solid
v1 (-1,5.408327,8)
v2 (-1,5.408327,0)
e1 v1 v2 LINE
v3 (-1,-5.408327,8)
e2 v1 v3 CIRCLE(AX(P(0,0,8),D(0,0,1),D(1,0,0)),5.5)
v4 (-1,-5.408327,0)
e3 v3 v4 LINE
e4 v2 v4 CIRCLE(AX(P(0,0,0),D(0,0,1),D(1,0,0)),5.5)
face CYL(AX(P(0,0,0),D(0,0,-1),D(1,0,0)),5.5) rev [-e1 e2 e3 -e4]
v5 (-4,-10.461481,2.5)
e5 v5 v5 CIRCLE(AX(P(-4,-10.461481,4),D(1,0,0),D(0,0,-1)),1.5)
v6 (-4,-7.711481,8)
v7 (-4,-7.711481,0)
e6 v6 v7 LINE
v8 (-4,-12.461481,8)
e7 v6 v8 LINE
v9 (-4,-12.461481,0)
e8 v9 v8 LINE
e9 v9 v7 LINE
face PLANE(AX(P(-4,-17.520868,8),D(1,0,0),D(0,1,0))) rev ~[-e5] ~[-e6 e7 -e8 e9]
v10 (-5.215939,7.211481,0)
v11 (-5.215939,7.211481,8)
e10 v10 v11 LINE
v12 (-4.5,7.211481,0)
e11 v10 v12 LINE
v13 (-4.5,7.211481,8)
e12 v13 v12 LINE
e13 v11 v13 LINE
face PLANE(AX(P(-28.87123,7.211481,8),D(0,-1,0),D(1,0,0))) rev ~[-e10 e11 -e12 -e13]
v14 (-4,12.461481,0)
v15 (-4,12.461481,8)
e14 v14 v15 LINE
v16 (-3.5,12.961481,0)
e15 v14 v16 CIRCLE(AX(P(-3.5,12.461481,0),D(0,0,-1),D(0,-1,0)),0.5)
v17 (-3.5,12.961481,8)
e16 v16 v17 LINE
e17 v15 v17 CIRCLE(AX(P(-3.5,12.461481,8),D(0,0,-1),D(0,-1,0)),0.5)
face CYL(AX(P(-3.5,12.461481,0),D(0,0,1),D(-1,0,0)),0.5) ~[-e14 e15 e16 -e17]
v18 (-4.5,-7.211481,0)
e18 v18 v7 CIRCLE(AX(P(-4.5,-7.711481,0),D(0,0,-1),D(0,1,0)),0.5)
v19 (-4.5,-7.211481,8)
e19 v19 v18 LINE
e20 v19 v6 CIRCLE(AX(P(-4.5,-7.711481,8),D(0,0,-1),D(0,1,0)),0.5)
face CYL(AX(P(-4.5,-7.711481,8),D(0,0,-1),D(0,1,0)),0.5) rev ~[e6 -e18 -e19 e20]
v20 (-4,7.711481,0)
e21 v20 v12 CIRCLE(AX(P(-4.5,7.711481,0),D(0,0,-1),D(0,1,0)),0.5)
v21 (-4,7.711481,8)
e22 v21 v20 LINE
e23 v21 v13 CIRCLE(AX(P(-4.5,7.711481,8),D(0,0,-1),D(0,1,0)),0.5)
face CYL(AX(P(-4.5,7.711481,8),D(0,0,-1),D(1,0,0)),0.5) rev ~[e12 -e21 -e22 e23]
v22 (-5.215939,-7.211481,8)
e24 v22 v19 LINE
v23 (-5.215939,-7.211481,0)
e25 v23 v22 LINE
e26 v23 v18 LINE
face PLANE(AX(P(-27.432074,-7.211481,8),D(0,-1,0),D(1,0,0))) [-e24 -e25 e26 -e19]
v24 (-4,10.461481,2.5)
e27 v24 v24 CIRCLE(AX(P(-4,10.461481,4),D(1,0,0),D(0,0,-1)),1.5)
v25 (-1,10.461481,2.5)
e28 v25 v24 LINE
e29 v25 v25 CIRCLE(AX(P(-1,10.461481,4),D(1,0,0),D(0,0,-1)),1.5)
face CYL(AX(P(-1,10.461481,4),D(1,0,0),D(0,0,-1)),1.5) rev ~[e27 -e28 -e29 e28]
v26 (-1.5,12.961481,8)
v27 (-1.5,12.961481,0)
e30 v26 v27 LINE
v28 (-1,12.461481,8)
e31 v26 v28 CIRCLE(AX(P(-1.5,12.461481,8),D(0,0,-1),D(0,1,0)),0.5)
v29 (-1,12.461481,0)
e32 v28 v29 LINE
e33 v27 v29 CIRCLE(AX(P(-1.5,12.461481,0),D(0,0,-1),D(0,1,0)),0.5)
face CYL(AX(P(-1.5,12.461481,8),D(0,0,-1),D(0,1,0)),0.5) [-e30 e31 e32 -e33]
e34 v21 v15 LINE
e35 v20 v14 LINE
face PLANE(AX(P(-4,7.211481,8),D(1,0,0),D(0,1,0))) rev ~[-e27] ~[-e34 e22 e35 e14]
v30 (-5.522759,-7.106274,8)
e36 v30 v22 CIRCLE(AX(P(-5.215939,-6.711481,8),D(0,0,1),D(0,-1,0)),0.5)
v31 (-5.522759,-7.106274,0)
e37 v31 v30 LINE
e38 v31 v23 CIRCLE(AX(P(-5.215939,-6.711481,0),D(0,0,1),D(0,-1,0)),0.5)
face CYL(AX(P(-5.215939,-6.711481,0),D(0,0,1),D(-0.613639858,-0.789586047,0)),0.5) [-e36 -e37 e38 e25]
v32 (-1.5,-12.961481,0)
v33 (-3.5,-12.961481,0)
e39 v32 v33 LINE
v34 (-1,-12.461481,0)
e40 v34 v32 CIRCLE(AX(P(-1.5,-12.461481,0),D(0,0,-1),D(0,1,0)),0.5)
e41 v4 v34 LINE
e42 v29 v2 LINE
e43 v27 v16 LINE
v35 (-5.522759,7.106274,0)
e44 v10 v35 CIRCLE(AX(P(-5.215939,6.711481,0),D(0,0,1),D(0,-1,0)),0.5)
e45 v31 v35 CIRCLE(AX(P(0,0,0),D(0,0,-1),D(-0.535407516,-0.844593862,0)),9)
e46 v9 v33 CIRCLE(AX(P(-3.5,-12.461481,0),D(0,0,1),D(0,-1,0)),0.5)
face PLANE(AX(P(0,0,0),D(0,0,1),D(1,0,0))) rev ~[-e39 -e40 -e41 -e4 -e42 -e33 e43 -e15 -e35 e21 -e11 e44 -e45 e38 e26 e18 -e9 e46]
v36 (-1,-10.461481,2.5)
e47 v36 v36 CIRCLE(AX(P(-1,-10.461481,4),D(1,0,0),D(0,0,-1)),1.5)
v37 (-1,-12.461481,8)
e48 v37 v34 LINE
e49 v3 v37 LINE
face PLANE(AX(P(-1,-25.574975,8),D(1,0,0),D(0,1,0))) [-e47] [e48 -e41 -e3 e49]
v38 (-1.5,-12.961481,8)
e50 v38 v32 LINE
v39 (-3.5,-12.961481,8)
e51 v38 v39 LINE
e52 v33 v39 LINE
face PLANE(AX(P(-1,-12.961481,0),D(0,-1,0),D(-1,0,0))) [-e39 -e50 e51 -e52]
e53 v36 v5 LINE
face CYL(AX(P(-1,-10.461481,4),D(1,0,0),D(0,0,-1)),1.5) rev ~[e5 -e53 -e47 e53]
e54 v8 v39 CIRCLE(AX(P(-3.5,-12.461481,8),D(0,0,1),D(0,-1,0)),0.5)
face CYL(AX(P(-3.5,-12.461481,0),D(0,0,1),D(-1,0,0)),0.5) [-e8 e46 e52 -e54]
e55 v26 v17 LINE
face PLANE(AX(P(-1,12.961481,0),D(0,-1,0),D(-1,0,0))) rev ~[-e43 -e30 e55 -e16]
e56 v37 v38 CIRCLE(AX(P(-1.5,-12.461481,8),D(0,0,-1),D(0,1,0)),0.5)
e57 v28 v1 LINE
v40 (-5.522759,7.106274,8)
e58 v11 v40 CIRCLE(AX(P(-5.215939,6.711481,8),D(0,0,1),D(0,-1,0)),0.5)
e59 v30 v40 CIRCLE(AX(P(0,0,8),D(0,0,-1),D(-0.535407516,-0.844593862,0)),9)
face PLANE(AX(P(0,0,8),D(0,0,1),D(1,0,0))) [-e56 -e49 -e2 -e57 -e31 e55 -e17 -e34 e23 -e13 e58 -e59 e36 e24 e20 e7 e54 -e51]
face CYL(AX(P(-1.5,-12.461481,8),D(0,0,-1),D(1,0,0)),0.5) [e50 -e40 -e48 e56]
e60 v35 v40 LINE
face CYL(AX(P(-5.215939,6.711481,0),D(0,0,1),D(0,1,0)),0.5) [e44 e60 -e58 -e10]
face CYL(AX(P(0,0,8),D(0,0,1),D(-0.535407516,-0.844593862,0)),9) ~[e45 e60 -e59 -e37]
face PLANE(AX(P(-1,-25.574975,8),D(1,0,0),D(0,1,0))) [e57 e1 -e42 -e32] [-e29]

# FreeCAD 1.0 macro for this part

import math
import FreeCAD as App
import Part
import Sketcher

V = App.Vector


def edges_at(feature, points):
    """Names of the edges that pass closest to the given points."""
    edges = feature.Shape.Edges
    near = lambda p: min(range(len(edges)), key=lambda i: edges[i].distToShape(Part.Vertex(*p))[0])
    return sorted({f"Edge{near(p) + 1}" for p in points})


def add_polygon(sketch, points):
    """Adds a closed chain of lines whose ends are joined by coincident constraints."""
    first, n = sketch.GeometryCount, len(points)
    for a, b in zip(points, points[1:] + points[:1]):
        sketch.addGeometry(Part.LineSegment(App.Vector(*a, 0), App.Vector(*b, 0)), False)
    for i in range(n):
        sketch.addConstraint(Sketcher.Constraint("Coincident", first + i, 2, first + (i + 1) % n, 1))

doc = App.newDocument("Part")
body = doc.addObject("PartDesign::Body", "Body")

# Sketch on XY plane
sketch1 = body.newObject("Sketcher::SketchObject", "Sketch")
sketch1.AttachmentSupport = (doc.getObject("XY_Plane"), [""])
sketch1.MapMode = "FlatFace"
sketch1.addGeometry([
    Part.Circle(V(0, 0, 0), V(0, 0, 1), 13),
    Part.Circle(V(0, 0, 0), V(0, 0, 1), 5.5),
], False)
sketch1.addConstraint([
    Sketcher.Constraint("Coincident", 0, 3, -1, 1),
    Sketcher.Constraint("Coincident", 1, 3, -1, 1),
    Sketcher.Constraint("Diameter", 0, 26.0),
    Sketcher.Constraint("Diameter", 1, 11.0),
])
pad1 = body.newObject("PartDesign::Pad", "Pad")
pad1.Profile = sketch1
pad1.Length = 8

# Sketch on XY plane
sketch2 = body.newObject("Sketcher::SketchObject", "Sketch001")
sketch2.AttachmentSupport = (doc.getObject("XY_Plane"), [""])
sketch2.MapMode = "FlatFace"
sketch2.AttachmentOffset = App.Placement(V(0, 0, 8), App.Rotation())
add_polygon(sketch2, [(-1, 24.243167), (-1, -25.574975), (31.310046, -25.574975), (31.310046, 24.243167)])  # lines 0-3
sketch2.addConstraint([
    Sketcher.Constraint("Vertical", 0),
    Sketcher.Constraint("Horizontal", 1),
    Sketcher.Constraint("Vertical", 2),
    Sketcher.Constraint("Horizontal", 3),
    Sketcher.Constraint("DistanceX", 0, 2, -1, 1, 1.0),
    Sketcher.Constraint("DistanceY", 0, 2, 0, 1, 49.818142),
    Sketcher.Constraint("DistanceX", 1, 1, 1, 2, 32.310046),
    Sketcher.Constraint("DistanceY", 0, 2, -1, 1, 25.574975),
])
pocket1 = body.newObject("PartDesign::Pocket", "Pocket")
pocket1.Profile = sketch2
pocket1.Length = 8

# Sketch on YZ plane
sketch3 = body.newObject("Sketcher::SketchObject", "Sketch002")
sketch3.AttachmentSupport = (doc.getObject("YZ_Plane"), [""])
sketch3.MapMode = "FlatFace"
sketch3.AttachmentOffset = App.Placement(V(0, 0, -1), App.Rotation())
sketch3.addGeometry([
    Part.Circle(V(10.461481, 4, 0), V(0, 0, 1), 1.5),
    Part.Circle(V(-10.461481, 4, 0), V(0, 0, 1), 1.5),
], False)
sketch3.addConstraint([
    Sketcher.Constraint("Equal", 0, 1),
    Sketcher.Constraint("Symmetric", 0, 3, 1, 3, -2),
    Sketcher.Constraint("Diameter", 0, 3.0),
    Sketcher.Constraint("DistanceY", -1, 1, 0, 3, 4.0),
    Sketcher.Constraint("DistanceX", -1, 1, 0, 3, 10.461481),
])
pocket2 = body.newObject("PartDesign::Pocket", "Pocket001")
pocket2.Profile = sketch3
pocket2.Length = 8

# Sketch on XY plane
sketch4 = body.newObject("Sketcher::SketchObject", "Sketch003")
sketch4.AttachmentSupport = (doc.getObject("XY_Plane"), [""])
sketch4.MapMode = "FlatFace"
sketch4.AttachmentOffset = App.Placement(V(0, 0, 8), App.Rotation())
add_polygon(sketch4, [(-28.87123, 21.044491), (-28.87123, 7.211481), (-4, 7.211481), (-4, 21.044491)])  # lines 0-3
add_polygon(sketch4, [(-27.432074, -7.211481), (-27.432074, -17.520868), (-4, -17.520868), (-4, -7.211481)])  # lines 4-7
sketch4.addConstraint([
    Sketcher.Constraint("Vertical", 0),
    Sketcher.Constraint("Horizontal", 1),
    Sketcher.Constraint("Vertical", 2),
    Sketcher.Constraint("Horizontal", 3),
    Sketcher.Constraint("Vertical", 4),
    Sketcher.Constraint("Horizontal", 5),
    Sketcher.Constraint("Vertical", 6),
    Sketcher.Constraint("Horizontal", 7),
    Sketcher.Constraint("Symmetric", 1, 2, 6, 2, -1),
    Sketcher.Constraint("DistanceX", 1, 2, -1, 1, 4.0),
    Sketcher.Constraint("DistanceX", 1, 1, 1, 2, 24.87123),
    Sketcher.Constraint("DistanceY", 0, 2, 0, 1, 13.83301),
    Sketcher.Constraint("DistanceX", 5, 1, 5, 2, 23.432074),
    Sketcher.Constraint("DistanceY", 4, 2, 4, 1, 10.309386),
    Sketcher.Constraint("DistanceY", -1, 1, 0, 2, 7.211481),
])
pocket3 = body.newObject("PartDesign::Pocket", "Pocket002")
pocket3.Profile = sketch4
pocket3.Length = 8

# Sketch on XY plane
sketch5 = body.newObject("Sketcher::SketchObject", "Sketch004")
sketch5.AttachmentSupport = (doc.getObject("XY_Plane"), [""])
sketch5.MapMode = "FlatFace"
sketch5.AttachmentOffset = App.Placement(V(0, 0, 8), App.Rotation())
sketch5.addGeometry([
    Part.LineSegment(V(-14.689218, -10.049334, 0), V(-4.818668, -7.601345, 0)),
    Part.ArcOfCircle(Part.Circle(V(0, 0, 0), V(0, 0, 1), 9), math.radians(119.956403), math.radians(237.628448)),
    Part.LineSegment(V(-4.494068, 7.79765, 0), V(-11.133482, 10.892455, 0)),
    Part.ArcOfCircle(Part.Circle(V(-3.918676, -1.105319, 0), V(0, 0, 1), 14), math.radians(121.020403), math.radians(219.706736)),
], False)
sketch5.addConstraint([
    Sketcher.Constraint("Coincident", 0, 2, 1, 2),
    Sketcher.Constraint("Coincident", 1, 1, 2, 1),
    Sketcher.Constraint("Coincident", 2, 2, 3, 1),
    Sketcher.Constraint("Coincident", 3, 2, 0, 1),
    Sketcher.Constraint("Coincident", 1, 3, -1, 1),
    Sketcher.Constraint("Radius", 1, 9.0),
    Sketcher.Constraint("Radius", 3, 14.0),
    Sketcher.Constraint("DistanceX", 0, 2, 1, 1, 0.3246),
    Sketcher.Constraint("DistanceY", 0, 2, 2, 2, 18.4938),
    Sketcher.Constraint("DistanceY", 3, 3, -1, 1, 1.105319),
    Sketcher.Constraint("DistanceY", -1, 1, 1, 1, 7.79765),
    Sketcher.Constraint("DistanceX", 2, 2, -1, 1, 11.133482),
    Sketcher.Constraint("DistanceX", 3, 2, 0, 2, 9.87055),
])
pocket4 = body.newObject("PartDesign::Pocket", "Pocket003")
pocket4.Profile = sketch5
pocket4.Length = 8

# Sketch on XY plane
sketch6 = body.newObject("Sketcher::SketchObject", "Sketch005")
sketch6.AttachmentSupport = (doc.getObject("XY_Plane"), [""])
sketch6.MapMode = "FlatFace"
add_polygon(sketch6, [(-1, 12.961481), (-1, 7.211481), (-4, 7.211481), (-4, 12.961481)])  # lines 0-3
add_polygon(sketch6, [(-1, -7.211481), (-1, -12.961481), (-4, -12.961481), (-4, -7.211481)])  # lines 4-7
sketch6.addConstraint([
    Sketcher.Constraint("Vertical", 0),
    Sketcher.Constraint("Horizontal", 1),
    Sketcher.Constraint("Vertical", 2),
    Sketcher.Constraint("Horizontal", 3),
    Sketcher.Constraint("Vertical", 4),
    Sketcher.Constraint("Horizontal", 5),
    Sketcher.Constraint("Vertical", 6),
    Sketcher.Constraint("Horizontal", 7),
    Sketcher.Constraint("Symmetric", 3, 2, 4, 2, -1),
    Sketcher.Constraint("Symmetric", 1, 2, 6, 2, -1),
    Sketcher.Constraint("DistanceX", 1, 2, 1, 1, 3.0),
    Sketcher.Constraint("DistanceX", 0, 2, -1, 1, 1.0),
    Sketcher.Constraint("DistanceY", 0, 2, 0, 1, 5.75),
    Sketcher.Constraint("DistanceY", -1, 1, 0, 2, 7.211481),
])
pad2 = body.newObject("PartDesign::Pad", "Pad001")
pad2.Profile = sketch6
pad2.Length = 8

# Sketch on YZ plane
sketch7 = body.newObject("Sketcher::SketchObject", "Sketch006")
sketch7.AttachmentSupport = (doc.getObject("YZ_Plane"), [""])
sketch7.MapMode = "FlatFace"
sketch7.AttachmentOffset = App.Placement(V(0, 0, -1), App.Rotation())
sketch7.addGeometry([
    Part.Circle(V(10.461481, 4, 0), V(0, 0, 1), 1.5),
    Part.Circle(V(-10.461481, 4, 0), V(0, 0, 1), 1.5),
], False)
sketch7.addConstraint([
    Sketcher.Constraint("Equal", 0, 1),
    Sketcher.Constraint("Symmetric", 0, 3, 1, 3, -2),
    Sketcher.Constraint("Diameter", 0, 3.0),
    Sketcher.Constraint("DistanceY", -1, 1, 0, 3, 4.0),
    Sketcher.Constraint("DistanceX", -1, 1, 0, 3, 10.461481),
])
pocket5 = body.newObject("PartDesign::Pocket", "Pocket004")
pocket5.Profile = sketch7
pocket5.Length = 8
doc.recompute()

fillet = body.newObject("PartDesign::Fillet", "Fillet")
fillet.Base = (pocket5, edges_at(pocket5, [(-4, 12.961, 4), (-4, -12.961, 4)]))
fillet.Radius = 0.5
doc.recompute()

fillet2 = body.newObject("PartDesign::Fillet", "Fillet001")
fillet2.Base = (fillet, edges_at(fillet, [(-4, 7.211, 4), (-4, -7.211, 4)]))
fillet2.Radius = 0.5
doc.recompute()

fillet3 = body.newObject("PartDesign::Fillet", "Fillet002")
fillet3.Base = (fillet2, edges_at(fillet2, [(-1, 12.961, 4), (-1, -12.961, 4)]))
fillet3.Radius = 0.5
doc.recompute()

fillet4 = body.newObject("PartDesign::Fillet", "Fillet003")
fillet4.Base = (fillet3, edges_at(fillet3, [(-5.385, 7.211, 4), (-5.385, -7.211, 4)]))
fillet4.Radius = 0.5

doc.recompute()
